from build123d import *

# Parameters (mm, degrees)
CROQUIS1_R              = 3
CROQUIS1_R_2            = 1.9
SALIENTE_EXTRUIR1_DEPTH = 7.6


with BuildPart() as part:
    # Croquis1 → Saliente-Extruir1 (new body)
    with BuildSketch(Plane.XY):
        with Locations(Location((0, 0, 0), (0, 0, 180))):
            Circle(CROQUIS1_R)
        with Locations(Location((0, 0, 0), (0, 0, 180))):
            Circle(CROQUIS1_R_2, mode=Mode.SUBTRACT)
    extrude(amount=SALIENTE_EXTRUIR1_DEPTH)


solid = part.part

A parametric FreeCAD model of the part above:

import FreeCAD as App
import Part
import Sketcher

V = App.Vector

doc = App.newDocument("Part")
body = doc.addObject("PartDesign::Body", "Body")

# Sketch on XY plane
sketch1 = body.newObject("Sketcher::SketchObject", "Sketch")
sketch1.AttachmentSupport = (doc.getObject("XY_Plane"), [""])
sketch1.MapMode = "FlatFace"
sketch1.addGeometry([
    Part.Circle(V(0, 0, 0), V(0, 0, 1), 3),
    Part.Circle(V(0, 0, 0), V(0, 0, 1), 1.9),
], False)
sketch1.addConstraint([
    Sketcher.Constraint("Coincident", 0, 3, -1, 1),
    Sketcher.Constraint("Coincident", 1, 3, -1, 1),
    Sketcher.Constraint("Diameter", 0, 6.0),
    Sketcher.Constraint("Diameter", 1, 3.8),
])
pad1 = body.newObject("PartDesign::Pad", "Pad")
pad1.Profile = sketch1
pad1.Length = 7.6

doc.recompute()
